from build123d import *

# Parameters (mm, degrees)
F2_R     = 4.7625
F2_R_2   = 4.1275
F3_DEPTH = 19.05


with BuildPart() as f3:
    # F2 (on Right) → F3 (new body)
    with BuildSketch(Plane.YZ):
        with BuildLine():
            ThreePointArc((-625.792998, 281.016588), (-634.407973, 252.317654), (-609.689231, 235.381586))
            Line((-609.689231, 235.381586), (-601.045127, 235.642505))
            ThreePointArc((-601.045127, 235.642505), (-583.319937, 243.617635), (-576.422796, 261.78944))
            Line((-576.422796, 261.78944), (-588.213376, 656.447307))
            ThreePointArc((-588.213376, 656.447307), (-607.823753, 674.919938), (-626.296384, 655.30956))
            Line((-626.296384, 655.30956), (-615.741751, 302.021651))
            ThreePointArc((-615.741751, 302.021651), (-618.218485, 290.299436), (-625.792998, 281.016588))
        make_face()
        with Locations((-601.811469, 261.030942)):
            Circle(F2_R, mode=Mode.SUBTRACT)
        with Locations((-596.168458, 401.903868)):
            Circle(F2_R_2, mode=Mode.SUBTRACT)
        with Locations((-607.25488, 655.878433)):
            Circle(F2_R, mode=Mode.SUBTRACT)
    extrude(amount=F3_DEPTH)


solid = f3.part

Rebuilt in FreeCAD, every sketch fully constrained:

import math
import FreeCAD as App
import Part
import Sketcher

V = App.Vector
Q = App.Units.Quantity

doc = App.newDocument("Part")
body = doc.addObject("PartDesign::Body", "Body")

sketch1 = body.newObject("Sketcher::SketchObject", "Sketch")
sketch1.AttachmentSupport = (doc.getObject("YZ_Plane"), [""])
sketch1.MapMode = "FlatFace"
sketch1.addGeometry([
    Part.ArcOfCircle(Part.Circle(V(-610.455573, 260.770023, 0), V(0, 0, 1), 25.4), math.radians(127.145101), math.radians(271.72893)),
    Part.LineSegment(V(-609.689231, 235.381586, 0), V(-601.045127, 235.642505, 0)),
    Part.ArcOfCircle(Part.Circle(V(-601.811469, 261.030943, 0), V(0, 0, 1), 25.400001), math.radians(-88.271069), math.radians(1.711227)),
    Part.LineSegment(V(-576.422796, 261.78944, 0), V(-588.213376, 656.447307, 0)),
    Part.ArcOfCircle(Part.Circle(V(-607.25488, 655.878434, 0), V(0, 0, 1), 19.05), math.radians(1.711227), math.radians(181.71123)),
    Part.LineSegment(V(-626.296384, 655.30956, 0), V(-615.741751, 302.021651, 0)),
    Part.ArcOfCircle(Part.Circle(V(-641.130423, 301.263153, 0), V(0, 0, 1), 25.4), math.radians(-52.854898), math.radians(1.711229)),
    Part.Circle(V(-601.811469, 261.030942, 0), V(0, 0, 1), 4.7625),
    Part.Circle(V(-596.168458, 401.903868, 0), V(0, 0, 1), 4.1275),
    Part.Circle(V(-607.25488, 655.878433, 0), V(0, 0, 1), 4.7625),
], False)
sketch1.addConstraint([
    Sketcher.Constraint("Coincident", 0, 2, 1, 1),
    Sketcher.Constraint("Coincident", 1, 2, 2, 1),
    Sketcher.Constraint("Coincident", 2, 2, 3, 1),
    Sketcher.Constraint("Coincident", 3, 2, 4, 1),
    Sketcher.Constraint("Coincident", 4, 2, 5, 1),
    Sketcher.Constraint("Coincident", 5, 2, 6, 2),
    Sketcher.Constraint("Coincident", 6, 1, 0, 1),
    Sketcher.Constraint("Coincident", 7, 3, 2, 3),
    Sketcher.Constraint("Coincident", 9, 3, 4, 3),
    Sketcher.Constraint("Radius", 0, Q("1 in")),
    Sketcher.Constraint("Radius", 2, Q("1 in")),
    Sketcher.Constraint("Radius", 6, Q("1 in")),
    Sketcher.Constraint("Radius", 4, Q("0.75 in")),
    Sketcher.Constraint("Diameter", 7, Q("0.375 in")),
    Sketcher.Constraint("Diameter", 8, Q("0.325 in")),
    Sketcher.Constraint("Diameter", 9, Q("0.375 in")),
    Sketcher.Constraint("DistanceX", 6, 1, -1, 1, Q("625.792998 mm")),
    Sketcher.Constraint("DistanceY", 7, 3, 2, 2, Q("0.758498 mm")),
    Sketcher.Constraint("DistanceY", 6, 3, 5, 2, Q("0.758498 mm")),
    Sketcher.Constraint("Distance", 1, Q("8.648041 mm")),
    Sketcher.Constraint("DistanceX", 2, 3, -1, 1, Q("601.811469 mm")),
    Sketcher.Constraint("DistanceX", 4, 3, -1, 1, Q("607.25488 mm")),
    Sketcher.Constraint("DistanceY", -1, 1, 7, 3, Q("261.030942 mm")),
    Sketcher.Constraint("DistanceX", 8, 3, -1, 1, Q("596.168458 mm")),
    Sketcher.Constraint("DistanceY", -1, 1, 8, 3, Q("401.903868 mm")),
    Sketcher.Constraint("DistanceX", 0, 2, -1, 1, Q("609.689231 mm")),
    Sketcher.Constraint("DistanceY", -1, 1, 4, 2, Q("655.30956 mm")),
    Sketcher.Constraint("DistanceX", 5, 2, -1, 1, Q("615.741751 mm")),
    Sketcher.Constraint("DistanceY", -1, 1, 5, 2, Q("302.021651 mm")),
    Sketcher.Constraint("DistanceY", 0, 3, 2, 3, Q("0.26092 mm")),
    Sketcher.Constraint("DistanceY", 2, 3, 4, 3, Q("394.847491 mm")),
    Sketcher.Constraint("DistanceX", 8, 3, 3, 2, Q("7.955082 mm")),
])
pad1 = body.newObject("PartDesign::Pad", "Pad")
pad1.Profile = sketch1
pad1.Length = Q("0.75 in")

doc.recompute()
